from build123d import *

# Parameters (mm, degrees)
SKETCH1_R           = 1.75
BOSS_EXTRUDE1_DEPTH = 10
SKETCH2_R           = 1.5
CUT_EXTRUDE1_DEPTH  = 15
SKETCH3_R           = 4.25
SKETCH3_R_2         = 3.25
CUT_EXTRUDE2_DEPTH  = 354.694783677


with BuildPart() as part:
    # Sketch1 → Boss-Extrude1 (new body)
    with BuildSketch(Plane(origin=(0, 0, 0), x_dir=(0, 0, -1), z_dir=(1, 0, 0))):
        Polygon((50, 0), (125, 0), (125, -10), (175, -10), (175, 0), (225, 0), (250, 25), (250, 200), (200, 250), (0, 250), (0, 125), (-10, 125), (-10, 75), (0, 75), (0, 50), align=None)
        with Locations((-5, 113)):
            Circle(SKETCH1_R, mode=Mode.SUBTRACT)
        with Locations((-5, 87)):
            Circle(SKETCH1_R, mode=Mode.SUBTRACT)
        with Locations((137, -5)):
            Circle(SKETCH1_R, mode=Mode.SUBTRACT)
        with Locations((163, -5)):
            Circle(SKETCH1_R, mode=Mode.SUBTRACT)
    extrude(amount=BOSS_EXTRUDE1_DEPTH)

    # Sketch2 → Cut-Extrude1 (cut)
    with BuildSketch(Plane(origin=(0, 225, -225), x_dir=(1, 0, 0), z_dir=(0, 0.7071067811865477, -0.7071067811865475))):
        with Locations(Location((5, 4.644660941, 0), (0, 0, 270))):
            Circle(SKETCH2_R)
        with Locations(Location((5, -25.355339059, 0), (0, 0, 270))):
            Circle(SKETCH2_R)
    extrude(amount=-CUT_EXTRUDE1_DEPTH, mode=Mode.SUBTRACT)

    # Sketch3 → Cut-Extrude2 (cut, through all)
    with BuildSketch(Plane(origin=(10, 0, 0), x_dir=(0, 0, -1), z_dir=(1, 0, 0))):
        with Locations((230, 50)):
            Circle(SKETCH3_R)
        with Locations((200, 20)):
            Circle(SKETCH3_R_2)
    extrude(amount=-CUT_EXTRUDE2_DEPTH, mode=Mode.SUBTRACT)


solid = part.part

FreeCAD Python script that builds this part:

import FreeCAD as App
import Part
import Sketcher

V = App.Vector
Q = App.Units.Quantity

doc = App.newDocument("Part")
body = doc.addObject("PartDesign::Body", "Body")

sketch1 = doc.addObject("Sketcher::SketchObject", "Sketch")
body.addObject(sketch1)
sketch1.AttachmentSupport = (doc.YZ_Plane, [""])
sketch1.MapMode = "FlatFace"
sketch1.addGeometry(Part.LineSegment(V(0, -50, 0), V(0, -125, 0)), False)
sketch1.addGeometry(Part.LineSegment(V(0, -125, 0), V(-10, -125, 0)), False)
sketch1.addGeometry(Part.LineSegment(V(-10, -125, 0), V(-10, -175, 0)), False)
sketch1.addGeometry(Part.LineSegment(V(-10, -175, 0), V(0, -175, 0)), False)
sketch1.addGeometry(Part.LineSegment(V(0, -175, 0), V(0, -225, 0)), False)
sketch1.addGeometry(Part.LineSegment(V(0, -225, 0), V(25, -250, 0)), False)
sketch1.addGeometry(Part.LineSegment(V(25, -250, 0), V(200, -250, 0)), False)
sketch1.addGeometry(Part.LineSegment(V(200, -250, 0), V(250, -200, 0)), False)
sketch1.addGeometry(Part.LineSegment(V(250, -200, 0), V(250, 0, 0)), False)
sketch1.addGeometry(Part.LineSegment(V(250, 0, 0), V(125, 0, 0)), False)
sketch1.addGeometry(Part.LineSegment(V(125, 0, 0), V(125, 10, 0)), False)
sketch1.addGeometry(Part.LineSegment(V(125, 10, 0), V(75, 10, 0)), False)
sketch1.addGeometry(Part.LineSegment(V(75, 10, 0), V(75, 0, 0)), False)
sketch1.addGeometry(Part.LineSegment(V(75, 0, 0), V(50, 0, 0)), False)
sketch1.addGeometry(Part.LineSegment(V(50, 0, 0), V(0, -50, 0)), False)
sketch1.addGeometry(Part.Circle(V(-5, -137, 0), V(0, 0, 1), 1.8), False)
sketch1.addGeometry(Part.Circle(V(-5, -163, 0), V(0, 0, 1), 1.8), False)
sketch1.addGeometry(Part.Circle(V(87, 5, 0), V(0, 0, 1), 1.8), False)
sketch1.addGeometry(Part.Circle(V(113, 5, 0), V(0, 0, 1), 1.8), False)
sketch1.addConstraint(Sketcher.Constraint("Coincident", 0, 2, 1, 1))
sketch1.addConstraint(Sketcher.Constraint("Coincident", 1, 2, 2, 1))
sketch1.addConstraint(Sketcher.Constraint("Coincident", 2, 2, 3, 1))
sketch1.addConstraint(Sketcher.Constraint("Coincident", 3, 2, 4, 1))
sketch1.addConstraint(Sketcher.Constraint("Coincident", 4, 2, 5, 1))
sketch1.addConstraint(Sketcher.Constraint("Coincident", 5, 2, 6, 1))
sketch1.addConstraint(Sketcher.Constraint("Coincident", 6, 2, 7, 1))
sketch1.addConstraint(Sketcher.Constraint("Coincident", 7, 2, 8, 1))
sketch1.addConstraint(Sketcher.Constraint("Coincident", 8, 2, 9, 1))
sketch1.addConstraint(Sketcher.Constraint("Coincident", 9, 2, 10, 1))
sketch1.addConstraint(Sketcher.Constraint("Coincident", 10, 2, 11, 1))
sketch1.addConstraint(Sketcher.Constraint("Coincident", 11, 2, 12, 1))
sketch1.addConstraint(Sketcher.Constraint("Coincident", 12, 2, 13, 1))
sketch1.addConstraint(Sketcher.Constraint("Coincident", 13, 2, 14, 1))
sketch1.addConstraint(Sketcher.Constraint("Coincident", 14, 2, 0, 1))
sketch1.addConstraint(Sketcher.Constraint("Vertical", 0))
sketch1.addConstraint(Sketcher.Constraint("Horizontal", 1))
sketch1.addConstraint(Sketcher.Constraint("Vertical", 2))
sketch1.addConstraint(Sketcher.Constraint("Horizontal", 3))
sketch1.addConstraint(Sketcher.Constraint("Vertical", 4))
sketch1.addConstraint(Sketcher.Constraint("Horizontal", 6))
sketch1.addConstraint(Sketcher.Constraint("Vertical", 8))
sketch1.addConstraint(Sketcher.Constraint("Horizontal", 9))
sketch1.addConstraint(Sketcher.Constraint("Vertical", 10))
sketch1.addConstraint(Sketcher.Constraint("Horizontal", 11))
sketch1.addConstraint(Sketcher.Constraint("Vertical", 12))
sketch1.addConstraint(Sketcher.Constraint("Horizontal", 13))
sketch1.addConstraint(Sketcher.Constraint("Equal", 15, 16))
sketch1.addConstraint(Sketcher.Constraint("Equal", 16, 17))
sketch1.addConstraint(Sketcher.Constraint("Equal", 17, 18))
sketch1.addConstraint(Sketcher.Constraint("PointOnObject", 0, 2, -2))
sketch1.addConstraint(Sketcher.Constraint("PointOnObject", 3, 2, -2))
sketch1.addConstraint(Sketcher.Constraint("PointOnObject", 8, 2, -1))
sketch1.addConstraint(Sketcher.Constraint("PointOnObject", 12, 2, -1))
sketch1.addConstraint(Sketcher.Constraint("Perpendicular", 5, 7))
sketch1.addConstraint(Sketcher.Constraint("Parallel", 7, 14))
sketch1.addConstraint(Sketcher.Constraint("Horizontal", 17, 3, 18, 3))
sketch1.addConstraint(Sketcher.Constraint("Vertical", 15, 3, 16, 3))
sketch1.addConstraint(Sketcher.Constraint("Equal", 11, 2))
sketch1.addConstraint(Sketcher.Constraint("Equal", 2, 4))
sketch1.addConstraint(Sketcher.Constraint("Equal", 3, 10))
sketch1.addConstraint(Sketcher.Constraint("Equal", 7, 14))
sketch1.addConstraint(Sketcher.Constraint("Diameter", 15, Q("3.5 mm")))
sketch1.addConstraint(Sketcher.Constraint("DistanceX", 1, 2, 1, 1, Q("10 mm")))
sketch1.addConstraint(Sketcher.Constraint("DistanceX", 6, 1, 6, 2, Q("175 mm")))
sketch1.addConstraint(Sketcher.Constraint("DistanceX", 9, 2, 9, 1, Q("125 mm")))
sketch1.addConstraint(Sketcher.Constraint("DistanceX", 11, 2, 11, 1, Q("50 mm")))
sketch1.addConstraint(Sketcher.Constraint("DistanceX", 13, 2, 13, 1, Q("25 mm")))
sketch1.addConstraint(Sketcher.Constraint("DistanceY", 0, 2, 0, 1, Q("75 mm")))
sketch1.addConstraint(Sketcher.Constraint("DistanceY", 8, 1, 8, 2, Q("200 mm")))
sketch1.addConstraint(Sketcher.Constraint("DistanceX", 15, 3, -1, 1, Q("5 mm")))
sketch1.addConstraint(Sketcher.Constraint("DistanceY", 15, 3, -1, 1, Q("137 mm")))
sketch1.addConstraint(Sketcher.Constraint("DistanceY", 16, 3, -1, 1, Q("163 mm")))
sketch1.addConstraint(Sketcher.Constraint("DistanceX", -1, 1, 17, 3, Q("87 mm")))
sketch1.addConstraint(Sketcher.Constraint("DistanceY", -1, 1, 17, 3, Q("5 mm")))
sketch1.addConstraint(Sketcher.Constraint("DistanceX", -1, 1, 18, 3, Q("113 mm")))
sketch1.addConstraint(Sketcher.Constraint("DistanceY", 0, 2, -1, 1, Q("125 mm")))
pad1 = doc.addObject("PartDesign::Pad", "Pad")
body.addObject(pad1)
pad1.Profile = sketch1
pad1.Length = 10

sketch2 = doc.addObject("Sketcher::SketchObject", "Sketch001")
body.addObject(sketch2)
sketch2.Placement = App.Placement(V(0, 225, -225), App.Rotation(V(1, 0, 0), V(0, -0.707106781, -0.707106781), V(0, 0.707106781, -0.707106781), "ZXY"))
sketch2.addGeometry(Part.Circle(V(5, 4.6, 0), V(0, 0, 1), 1.5), False)
sketch2.addGeometry(Part.Circle(V(5, -25.4, 0), V(0, 0, 1), 1.5), False)
sketch2.addConstraint(Sketcher.Constraint("Equal", 0, 1))
sketch2.addConstraint(Sketcher.Constraint("Vertical", 0, 3, 1, 3))
sketch2.addConstraint(Sketcher.Constraint("Diameter", 0, Q("3 mm")))
sketch2.addConstraint(Sketcher.Constraint("DistanceX", -1, 1, 0, 3, Q("5 mm")))
sketch2.addConstraint(Sketcher.Constraint("DistanceY", 1, 3, 0, 3, Q("30 mm")))
sketch2.addConstraint(Sketcher.Constraint("DistanceY", -1, 1, 0, 3, Q("4.644661 mm")))
pocket1 = doc.addObject("PartDesign::Pocket", "Pocket")
body.addObject(pocket1)
pocket1.Profile = sketch2
pocket1.Length = 15

sketch3 = doc.addObject("Sketcher::SketchObject", "Sketch002")
body.addObject(sketch3)
sketch3.AttachmentSupport = (doc.YZ_Plane, [""])
sketch3.MapMode = "FlatFace"
sketch3.AttachmentOffset = App.Placement(V(0, 0, 10), App.Rotation())
sketch3.addGeometry(Part.Circle(V(50, -230, 0), V(0, 0, 1), 4.2), False)
sketch3.addGeometry(Part.Circle(V(20, -200, 0), V(0, 0, 1), 3.2), False)
sketch3.addConstraint(Sketcher.Constraint("Diameter", 0, Q("8.5 mm")))
sketch3.addConstraint(Sketcher.Constraint("Diameter", 1, Q("6.5 mm")))
sketch3.addConstraint(Sketcher.Constraint("DistanceX", -1, 1, 0, 3, Q("50 mm")))
sketch3.addConstraint(Sketcher.Constraint("DistanceY", 0, 3, -1, 1, Q("230 mm")))
sketch3.addConstraint(Sketcher.Constraint("DistanceX", -1, 1, 1, 3, Q("20 mm")))
sketch3.addConstraint(Sketcher.Constraint("DistanceY", 1, 3, -1, 1, Q("200 mm")))
pocket2 = doc.addObject("PartDesign::Pocket", "Pocket001")
body.addObject(pocket2)
pocket2.Profile = sketch3
pocket2.Type = "ThroughAll"

doc.recompute()
